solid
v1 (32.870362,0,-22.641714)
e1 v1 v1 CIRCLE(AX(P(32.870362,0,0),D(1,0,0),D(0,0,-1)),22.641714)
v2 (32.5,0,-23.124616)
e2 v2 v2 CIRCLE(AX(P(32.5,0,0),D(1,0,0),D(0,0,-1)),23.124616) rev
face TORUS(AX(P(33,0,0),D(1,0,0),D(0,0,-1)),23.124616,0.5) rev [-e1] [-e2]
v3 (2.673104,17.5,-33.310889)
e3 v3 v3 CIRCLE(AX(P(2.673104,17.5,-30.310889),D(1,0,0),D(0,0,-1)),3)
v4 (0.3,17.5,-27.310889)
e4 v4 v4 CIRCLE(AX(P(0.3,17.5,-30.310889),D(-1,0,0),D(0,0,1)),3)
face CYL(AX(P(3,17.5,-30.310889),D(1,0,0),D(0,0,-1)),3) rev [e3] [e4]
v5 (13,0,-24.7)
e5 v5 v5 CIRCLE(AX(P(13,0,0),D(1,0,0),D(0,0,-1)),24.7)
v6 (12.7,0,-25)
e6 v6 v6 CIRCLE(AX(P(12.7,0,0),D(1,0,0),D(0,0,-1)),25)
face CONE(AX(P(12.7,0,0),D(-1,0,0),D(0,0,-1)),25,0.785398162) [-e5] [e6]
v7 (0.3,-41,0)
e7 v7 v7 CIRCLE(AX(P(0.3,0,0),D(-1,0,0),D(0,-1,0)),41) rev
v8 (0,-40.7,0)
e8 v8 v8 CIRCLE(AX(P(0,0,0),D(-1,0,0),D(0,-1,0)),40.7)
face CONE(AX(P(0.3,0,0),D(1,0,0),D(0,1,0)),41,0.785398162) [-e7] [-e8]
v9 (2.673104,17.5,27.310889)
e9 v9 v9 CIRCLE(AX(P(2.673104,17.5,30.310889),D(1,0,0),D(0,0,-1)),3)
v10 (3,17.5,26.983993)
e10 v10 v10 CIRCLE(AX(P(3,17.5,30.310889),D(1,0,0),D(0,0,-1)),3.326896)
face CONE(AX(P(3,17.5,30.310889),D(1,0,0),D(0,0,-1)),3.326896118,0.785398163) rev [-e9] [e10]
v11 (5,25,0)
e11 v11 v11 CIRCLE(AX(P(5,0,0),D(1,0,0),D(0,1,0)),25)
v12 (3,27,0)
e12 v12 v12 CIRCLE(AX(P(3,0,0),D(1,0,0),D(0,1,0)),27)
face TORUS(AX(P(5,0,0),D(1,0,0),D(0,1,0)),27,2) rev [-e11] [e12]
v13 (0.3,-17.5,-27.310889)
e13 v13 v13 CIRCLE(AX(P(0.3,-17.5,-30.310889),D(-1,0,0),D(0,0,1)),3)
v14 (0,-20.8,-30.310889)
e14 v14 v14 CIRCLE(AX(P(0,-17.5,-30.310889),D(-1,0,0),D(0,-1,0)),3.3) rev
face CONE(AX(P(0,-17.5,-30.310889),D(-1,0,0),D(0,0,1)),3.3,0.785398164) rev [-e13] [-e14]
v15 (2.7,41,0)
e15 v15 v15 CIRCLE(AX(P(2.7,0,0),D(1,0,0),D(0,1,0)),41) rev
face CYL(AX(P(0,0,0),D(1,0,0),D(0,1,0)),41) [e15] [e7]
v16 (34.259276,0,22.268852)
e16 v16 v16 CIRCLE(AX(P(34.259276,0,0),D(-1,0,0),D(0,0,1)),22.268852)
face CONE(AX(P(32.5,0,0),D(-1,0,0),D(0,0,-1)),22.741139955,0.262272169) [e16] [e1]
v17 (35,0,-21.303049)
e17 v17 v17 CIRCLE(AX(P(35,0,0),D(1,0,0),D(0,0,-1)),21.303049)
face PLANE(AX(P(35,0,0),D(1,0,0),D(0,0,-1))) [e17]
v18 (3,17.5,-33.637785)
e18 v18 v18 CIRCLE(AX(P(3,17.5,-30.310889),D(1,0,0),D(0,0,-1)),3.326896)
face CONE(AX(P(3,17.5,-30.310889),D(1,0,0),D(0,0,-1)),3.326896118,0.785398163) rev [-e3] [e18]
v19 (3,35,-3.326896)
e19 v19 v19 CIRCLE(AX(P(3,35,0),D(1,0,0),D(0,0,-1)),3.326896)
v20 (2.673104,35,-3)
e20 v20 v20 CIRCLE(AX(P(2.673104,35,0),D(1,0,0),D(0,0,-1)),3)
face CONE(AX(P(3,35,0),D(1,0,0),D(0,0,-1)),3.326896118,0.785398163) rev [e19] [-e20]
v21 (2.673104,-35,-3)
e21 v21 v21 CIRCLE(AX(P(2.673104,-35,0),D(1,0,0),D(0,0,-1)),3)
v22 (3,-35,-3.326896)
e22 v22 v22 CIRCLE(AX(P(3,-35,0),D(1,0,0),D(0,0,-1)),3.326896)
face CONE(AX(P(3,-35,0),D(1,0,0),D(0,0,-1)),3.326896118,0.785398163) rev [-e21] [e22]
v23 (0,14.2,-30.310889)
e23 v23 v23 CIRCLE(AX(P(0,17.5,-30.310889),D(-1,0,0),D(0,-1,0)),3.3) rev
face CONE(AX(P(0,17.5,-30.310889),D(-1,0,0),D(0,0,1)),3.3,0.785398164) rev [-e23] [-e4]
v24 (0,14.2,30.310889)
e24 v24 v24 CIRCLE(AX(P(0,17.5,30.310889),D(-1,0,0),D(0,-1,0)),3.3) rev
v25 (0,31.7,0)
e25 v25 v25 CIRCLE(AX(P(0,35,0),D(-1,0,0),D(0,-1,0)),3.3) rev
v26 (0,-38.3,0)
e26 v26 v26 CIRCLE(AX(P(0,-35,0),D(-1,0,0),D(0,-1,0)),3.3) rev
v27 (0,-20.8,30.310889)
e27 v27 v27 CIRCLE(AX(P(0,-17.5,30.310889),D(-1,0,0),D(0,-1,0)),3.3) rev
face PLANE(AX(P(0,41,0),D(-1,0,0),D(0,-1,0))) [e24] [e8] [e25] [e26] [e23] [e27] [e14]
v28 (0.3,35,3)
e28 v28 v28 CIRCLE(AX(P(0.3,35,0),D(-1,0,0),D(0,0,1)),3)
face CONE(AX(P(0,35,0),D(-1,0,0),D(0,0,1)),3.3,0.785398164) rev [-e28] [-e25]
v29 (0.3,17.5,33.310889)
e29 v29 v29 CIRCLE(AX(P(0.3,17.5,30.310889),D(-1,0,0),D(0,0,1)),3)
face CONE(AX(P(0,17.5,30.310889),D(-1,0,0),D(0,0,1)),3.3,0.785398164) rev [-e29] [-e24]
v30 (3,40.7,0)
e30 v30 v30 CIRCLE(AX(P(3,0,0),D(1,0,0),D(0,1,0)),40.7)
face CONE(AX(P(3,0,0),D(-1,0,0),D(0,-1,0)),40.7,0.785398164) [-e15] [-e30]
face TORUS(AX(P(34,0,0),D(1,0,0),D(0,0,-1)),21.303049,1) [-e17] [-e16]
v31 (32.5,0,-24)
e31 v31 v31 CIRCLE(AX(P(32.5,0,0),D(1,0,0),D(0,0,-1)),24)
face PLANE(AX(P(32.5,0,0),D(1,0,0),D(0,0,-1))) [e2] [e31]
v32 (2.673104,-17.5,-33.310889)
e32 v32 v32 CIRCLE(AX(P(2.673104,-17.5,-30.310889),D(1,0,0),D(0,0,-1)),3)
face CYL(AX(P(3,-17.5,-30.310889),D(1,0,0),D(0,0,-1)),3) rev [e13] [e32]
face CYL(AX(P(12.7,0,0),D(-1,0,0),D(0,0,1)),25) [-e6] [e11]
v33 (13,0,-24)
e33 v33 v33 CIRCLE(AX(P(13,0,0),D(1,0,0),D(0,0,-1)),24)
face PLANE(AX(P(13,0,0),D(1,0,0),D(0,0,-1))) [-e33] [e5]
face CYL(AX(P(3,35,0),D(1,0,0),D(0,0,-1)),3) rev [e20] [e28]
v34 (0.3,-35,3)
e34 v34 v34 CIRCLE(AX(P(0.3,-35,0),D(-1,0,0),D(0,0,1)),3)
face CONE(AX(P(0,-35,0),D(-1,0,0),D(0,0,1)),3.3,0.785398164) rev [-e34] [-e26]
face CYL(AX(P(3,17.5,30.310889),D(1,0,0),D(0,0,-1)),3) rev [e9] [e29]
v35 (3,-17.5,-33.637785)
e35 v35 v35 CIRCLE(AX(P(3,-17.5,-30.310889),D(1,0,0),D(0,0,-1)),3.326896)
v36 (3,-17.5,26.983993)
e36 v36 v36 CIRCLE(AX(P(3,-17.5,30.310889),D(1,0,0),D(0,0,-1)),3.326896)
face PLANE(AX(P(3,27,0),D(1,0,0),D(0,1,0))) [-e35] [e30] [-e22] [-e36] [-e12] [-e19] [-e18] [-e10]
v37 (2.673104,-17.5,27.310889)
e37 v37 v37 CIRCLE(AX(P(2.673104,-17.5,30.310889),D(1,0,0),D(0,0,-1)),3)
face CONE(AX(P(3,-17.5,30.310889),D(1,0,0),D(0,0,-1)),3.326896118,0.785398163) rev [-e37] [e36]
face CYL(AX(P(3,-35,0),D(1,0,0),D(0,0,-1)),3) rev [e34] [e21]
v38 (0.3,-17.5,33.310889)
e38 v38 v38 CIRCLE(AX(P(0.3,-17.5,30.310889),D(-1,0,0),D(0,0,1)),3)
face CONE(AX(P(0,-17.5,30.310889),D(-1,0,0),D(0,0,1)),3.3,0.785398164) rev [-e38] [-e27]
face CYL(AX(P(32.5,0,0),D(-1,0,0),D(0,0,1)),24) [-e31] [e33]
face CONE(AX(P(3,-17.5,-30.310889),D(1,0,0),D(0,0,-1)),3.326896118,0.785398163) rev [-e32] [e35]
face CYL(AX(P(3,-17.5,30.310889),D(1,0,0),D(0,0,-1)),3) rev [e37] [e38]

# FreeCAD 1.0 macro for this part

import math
import FreeCAD as App
import Part
import Sketcher
Q = App.Units.Quantity


def edges_at(feature, points):
    """Names of the edges that pass closest to the given points."""
    edges = feature.Shape.Edges
    near = lambda p: min(range(len(edges)), key=lambda i: edges[i].distToShape(Part.Vertex(*p))[0])
    return sorted({f"Edge{near(p) + 1}" for p in points})

doc = App.newDocument("Part")
params = doc.addObject("Spreadsheet::Sheet", "Params")
for row, (alias, value) in enumerate([
    ("sketch1_radius", "2 mm"),
    ("sketch1_width", "5 mm"),
    ("sketch1_height", "41 mm"),
    ("sketch1_height2", "25 mm"),
    ("revolution_angle", "360 deg"),
    ("sketch2_diameter", "50 mm"),
    ("pad1_length", "7.7 mm"),
    ("sketch3_diameter", "50 mm"),
    ("pad2_length", "0.3 mm"),
    ("pad2_taper", "-45 deg"),
    ("sketch4_diameter", "48 mm"),
    ("pad3_length", "19.5 mm"),
    ("pad4_length", "2.5 mm"),
    ("pad4_taper", "-15.027088 deg"),
    ("sketch6_width", "3 mm"),
    ("groove_angle", "360 deg"),
    ("linearpattern_pitch", "35 mm"),
    ("linearpattern2_pitch", "60.621778 mm"),
    ("linearpattern3_pitch", "70 mm"),
    ("linearpattern4_pitch", "60.621778 mm"),
    ("linearpattern5_pitch", "35 mm"),
    ("chamfer_size", "0.3 mm"),
    ("fillet_radius", "0.5 mm"),
    ("fillet2_radius", "1 mm"),
], start=1):
    params.set(f"A{row}", alias)
    params.set(f"B{row}", "=" + value)
    params.setAlias(f"B{row}", alias)

body = doc.addObject("PartDesign::Body", "Body")

sketch1 = body.newObject("Sketcher::SketchObject", "Sketch")
sketch1.AttachmentSupport = (doc.getObject("XY_Plane"), [""])
sketch1.MapMode = "FlatFace"
sketch1.addGeometry([
    Part.LineSegment(App.Vector(0, 41, 0), App.Vector(0, 0, 0)),
    Part.LineSegment(App.Vector(0, 0, 0), App.Vector(5, 0, 0)),
    Part.LineSegment(App.Vector(5, 0, 0), App.Vector(5, 25, 0)),
    Part.ArcOfCircle(Part.Circle(App.Vector(5, 27, 0), App.Vector(0, 0, 1), 2), math.radians(-180), math.radians(-90)),
    Part.LineSegment(App.Vector(3, 27, 0), App.Vector(3, 41, 0)),
    Part.LineSegment(App.Vector(3, 41, 0), App.Vector(0, 41, 0)),
], False)
sketch1.addConstraint([
    Sketcher.Constraint("Coincident", 0, 2, 1, 1),
    Sketcher.Constraint("Coincident", 1, 2, 2, 1),
    Sketcher.Constraint("Coincident", 2, 2, 3, 2),
    Sketcher.Constraint("Tangent", 3, 1, 4, 1),
    Sketcher.Constraint("Coincident", 4, 2, 5, 1),
    Sketcher.Constraint("Coincident", 5, 2, 0, 1),
    Sketcher.Constraint("Vertical", 0),
    Sketcher.Constraint("Horizontal", 1),
    Sketcher.Constraint("Vertical", 2),
    Sketcher.Constraint("Vertical", 4),
    Sketcher.Constraint("Horizontal", 5),
    Sketcher.Constraint("Coincident", 0, 2, -1, 1),
    Sketcher.Constraint("Vertical", 3, 3, 1, 2),
    Sketcher.Constraint("Radius", 3, 2.0),
    Sketcher.Constraint("DistanceX", 1, 1, 1, 2, 5.0),
    Sketcher.Constraint("DistanceY", 0, 2, 0, 1, 41.0),
    Sketcher.Constraint("DistanceY", 2, 1, 2, 2, 25.0),
])
sketch1.setExpression("Constraints[13]", "Params.sketch1_radius")
sketch1.setExpression("Constraints[14]", "Params.sketch1_width")
sketch1.setExpression("Constraints[15]", "Params.sketch1_height")
sketch1.setExpression("Constraints[16]", "Params.sketch1_height2")
revolution = body.newObject("PartDesign::Revolution", "Revolution")
revolution.Profile = sketch1
revolution.ReferenceAxis = (sketch1, ["H_Axis"])
revolution.setExpression("Angle", "Params.revolution_angle")

sketch2 = body.newObject("Sketcher::SketchObject", "Sketch001")
sketch2.AttachmentSupport = (doc.getObject("YZ_Plane"), [""])
sketch2.MapMode = "FlatFace"
sketch2.AttachmentOffset = App.Placement(App.Vector(0, 0, 5), App.Rotation())
sketch2.addGeometry(Part.Circle(App.Vector(0, 0, 0), App.Vector(0, 0, 1), 25), False)
sketch2.addConstraint([
    Sketcher.Constraint("Coincident", 0, 3, -1, 1),
    Sketcher.Constraint("Diameter", 0, 50.0),
])
sketch2.setExpression("Constraints[1]", "Params.sketch2_diameter")
pad1 = body.newObject("PartDesign::Pad", "Pad")
pad1.Profile = sketch2
pad1.setExpression("Length", "Params.pad1_length")

sketch3 = body.newObject("Sketcher::SketchObject", "Sketch002")
sketch3.AttachmentSupport = (doc.getObject("YZ_Plane"), [""])
sketch3.MapMode = "FlatFace"
sketch3.AttachmentOffset = App.Placement(App.Vector(0, 0, 12.7), App.Rotation())
sketch3.addGeometry(Part.Circle(App.Vector(0, 0, 0), App.Vector(0, 0, 1), 25), False)
sketch3.addConstraint([
    Sketcher.Constraint("Coincident", 0, 3, -1, 1),
    Sketcher.Constraint("Diameter", 0, 50.0),
])
sketch3.setExpression("Constraints[1]", "Params.sketch3_diameter")
pad2 = body.newObject("PartDesign::Pad", "Pad001")
pad2.Profile = sketch3
pad2.setExpression("Length", "Params.pad2_length")
pad2.setExpression("TaperAngle", "Params.pad2_taper")

sketch4 = body.newObject("Sketcher::SketchObject", "Sketch003")
sketch4.AttachmentSupport = (doc.getObject("YZ_Plane"), [""])
sketch4.MapMode = "FlatFace"
sketch4.AttachmentOffset = App.Placement(App.Vector(0, 0, 13), App.Rotation())
sketch4.addGeometry(Part.Circle(App.Vector(0, 0, 0), App.Vector(0, 0, 1), 24), False)
sketch4.addConstraint([
    Sketcher.Constraint("Coincident", 0, 3, -1, 1),
    Sketcher.Constraint("Diameter", 0, 48.0),
])
sketch4.setExpression("Constraints[1]", "Params.sketch4_diameter")
pad3 = body.newObject("PartDesign::Pad", "Pad002")
pad3.Profile = sketch4
pad3.setExpression("Length", "Params.pad3_length")

sketch5 = body.newObject("Sketcher::SketchObject", "Sketch004")
sketch5.AttachmentSupport = (doc.getObject("YZ_Plane"), [""])
sketch5.MapMode = "FlatFace"
sketch5.AttachmentOffset = App.Placement(App.Vector(0, 0, 32.5), App.Rotation())
sketch5.addGeometry(Part.Circle(App.Vector(0, 0, 0), App.Vector(0, 0, 1), 22.74114), False)
sketch5.addConstraint([
    Sketcher.Constraint("Coincident", 0, 3, -1, 1),
    Sketcher.Constraint("Diameter", 0, 45.48228),
])
pad4 = body.newObject("PartDesign::Pad", "Pad003")
pad4.Profile = sketch5
pad4.setExpression("Length", "Params.pad4_length")
pad4.setExpression("TaperAngle", "Params.pad4_taper")

sketch6 = body.newObject("Sketcher::SketchObject", "Sketch005")
sketch6.AttachmentSupport = (doc.getObject("XZ_Plane"), [""])
sketch6.MapMode = "FlatFace"
sketch6.AttachmentOffset = App.Placement(App.Vector(0, 0, 17.5), App.Rotation())
sketch6.addGeometry([
    Part.LineSegment(App.Vector(0, 30.310889, 0), App.Vector(3, 30.310889, 0)),
    Part.LineSegment(App.Vector(3, 30.310889, 0), App.Vector(3, 26.983993, 0)),
    Part.LineSegment(App.Vector(3, 26.983993, 0), App.Vector(2.673104, 27.310889, 0)),
    Part.LineSegment(App.Vector(2.673104, 27.310889, 0), App.Vector(0, 27.310889, 0)),
    Part.LineSegment(App.Vector(0, 27.310889, 0), App.Vector(0, 30.310889, 0)),
], False)
sketch6.addGeometry(Part.LineSegment(App.Vector(3, 30.310889, 0), App.Vector(0, 30.310889, 0)), True)
sketch6.addConstraint([
    Sketcher.Constraint("Coincident", 0, 2, 1, 1),
    Sketcher.Constraint("Coincident", 1, 2, 2, 1),
    Sketcher.Constraint("Coincident", 2, 2, 3, 1),
    Sketcher.Constraint("Coincident", 3, 2, 4, 1),
    Sketcher.Constraint("Coincident", 4, 2, 0, 1),
    Sketcher.Constraint("Horizontal", 0),
    Sketcher.Constraint("Vertical", 1),
    Sketcher.Constraint("Horizontal", 3),
    Sketcher.Constraint("Vertical", 4),
    Sketcher.Constraint("Horizontal", 5),
    Sketcher.Constraint("Coincident", 5, 1, 0, 2),
    Sketcher.Constraint("PointOnObject", 3, 2, -2),
    Sketcher.Constraint("PointOnObject", 5, 2, -2),
    Sketcher.Constraint("Equal", 5, 4),
    Sketcher.Constraint("DistanceX", 0, 1, 0, 2, 3.0),
    Sketcher.Constraint("Angle", 2, Q("135 deg")),
    Sketcher.Constraint("Distance", 2, 0.462301),
    Sketcher.Constraint("DistanceY", -1, 1, 0, 2, 30.310889),
])
sketch6.setExpression("Constraints[14]", "Params.sketch6_width")
groove = body.newObject("PartDesign::Groove", "Groove")
groove.Profile = sketch6
groove.ReferenceAxis = (sketch6, ["Axis0"])
groove.setExpression("Angle", "Params.groove_angle")
doc.recompute()

linearpattern = body.newObject("PartDesign::LinearPattern", "LinearPattern")
linearpattern.Originals = [groove]
linearpattern.Direction = (doc.getObject("Y_Axis"), [""])
linearpattern.Mode = "offset"
linearpattern.setExpression("Offset", "Params.linearpattern_pitch")
linearpattern.Occurrences = 2
body.Tip = linearpattern
doc.recompute()

datumline = body.newObject("PartDesign::Line", "DatumLine")
datumline.Placement = App.Placement(App.Vector(0, 0, 0), App.Rotation(App.Vector(0, 0, 1), App.Vector(0, 0.866025404, -0.5)))
linearpattern2 = body.newObject("PartDesign::LinearPattern", "LinearPattern001")
linearpattern2.Originals = [groove]
linearpattern2.Direction = (datumline, [""])
linearpattern2.Mode = "offset"
linearpattern2.setExpression("Offset", "Params.linearpattern2_pitch")
linearpattern2.Occurrences = 2
body.Tip = linearpattern2
doc.recompute()

datumline2 = body.newObject("PartDesign::Line", "DatumLine001")
datumline2.Placement = App.Placement(App.Vector(0, 0, 0), App.Rotation(App.Vector(0, 0, 1), App.Vector(0, 0.5, -0.866025404)))
linearpattern3 = body.newObject("PartDesign::LinearPattern", "LinearPattern002")
linearpattern3.Originals = [groove]
linearpattern3.Direction = (datumline2, [""])
linearpattern3.Mode = "offset"
linearpattern3.setExpression("Offset", "Params.linearpattern3_pitch")
linearpattern3.Occurrences = 2
body.Tip = linearpattern3
doc.recompute()

linearpattern4 = body.newObject("PartDesign::LinearPattern", "LinearPattern003")
linearpattern4.Originals = [groove]
linearpattern4.Direction = (doc.getObject("Z_Axis"), [""])
linearpattern4.Mode = "offset"
linearpattern4.setExpression("Offset", "Params.linearpattern4_pitch")
linearpattern4.Occurrences = 2
linearpattern4.Reversed = True
body.Tip = linearpattern4
doc.recompute()

datumline3 = body.newObject("PartDesign::Line", "DatumLine002")
datumline3.Placement = App.Placement(App.Vector(0, 0, 0), App.Rotation(App.Vector(0, 0, 1), App.Vector(0, -0.5, -0.866025404)))
linearpattern5 = body.newObject("PartDesign::LinearPattern", "LinearPattern004")
linearpattern5.Originals = [groove]
linearpattern5.Direction = (datumline3, [""])
linearpattern5.Mode = "offset"
linearpattern5.setExpression("Offset", "Params.linearpattern5_pitch")
linearpattern5.Occurrences = 2
body.Tip = linearpattern5
doc.recompute()

chamfer = body.newObject("PartDesign::Chamfer", "Chamfer")
chamfer.Base = (linearpattern5, edges_at(linearpattern5, [
    (0, -35, 3),
    (0, -17.5, -27.311),
    (0, 17.5, -27.311),
    (0, -41, 0),
    (0, 35, 3),
    (0, 17.5, 33.311),
    (0, -17.5, 33.311),
    (3, -41, 0),
]))
chamfer.setExpression("Size", "Params.chamfer_size")
doc.recompute()

fillet = body.newObject("PartDesign::Fillet", "Fillet")
fillet.Base = (chamfer, edges_at(chamfer, [(32.5, 0, 22.741)]))
fillet.setExpression("Radius", "Params.fillet_radius")
doc.recompute()

fillet2 = body.newObject("PartDesign::Fillet", "Fillet001")
fillet2.Base = (fillet, edges_at(fillet, [(35, 0, 22.07)]))
fillet2.setExpression("Radius", "Params.fillet2_radius")

doc.recompute()
